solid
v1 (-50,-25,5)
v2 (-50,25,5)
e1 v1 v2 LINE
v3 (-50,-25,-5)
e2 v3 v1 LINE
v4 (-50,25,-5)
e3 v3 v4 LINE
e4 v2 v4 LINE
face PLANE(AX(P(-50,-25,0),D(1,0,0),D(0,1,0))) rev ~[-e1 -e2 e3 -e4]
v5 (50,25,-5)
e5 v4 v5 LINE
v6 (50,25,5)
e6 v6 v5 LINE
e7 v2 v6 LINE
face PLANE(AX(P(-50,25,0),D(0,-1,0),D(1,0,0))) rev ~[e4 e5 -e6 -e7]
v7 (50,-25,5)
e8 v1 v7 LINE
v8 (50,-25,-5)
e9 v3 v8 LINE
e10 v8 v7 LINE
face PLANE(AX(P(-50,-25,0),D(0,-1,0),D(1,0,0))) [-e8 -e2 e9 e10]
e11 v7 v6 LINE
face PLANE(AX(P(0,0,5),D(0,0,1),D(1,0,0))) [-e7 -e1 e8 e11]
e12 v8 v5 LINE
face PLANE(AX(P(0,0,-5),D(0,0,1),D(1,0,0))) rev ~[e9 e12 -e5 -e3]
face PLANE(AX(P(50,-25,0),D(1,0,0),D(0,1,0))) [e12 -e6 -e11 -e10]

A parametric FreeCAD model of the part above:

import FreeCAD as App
import Part
import Sketcher
from FreeCAD import Vector
Q = App.Units.Quantity


def add_polygon(sketch, points):
    """Adds a closed chain of lines whose ends are joined by coincident constraints."""
    first, n = sketch.GeometryCount, len(points)
    for a, b in zip(points, points[1:] + points[:1]):
        sketch.addGeometry(Part.LineSegment(App.Vector(*a, 0), App.Vector(*b, 0)), False)
    for i in range(n):
        sketch.addConstraint(Sketcher.Constraint("Coincident", first + i, 2, first + (i + 1) % n, 1))

doc = App.newDocument("Part")
body = doc.addObject("PartDesign::Body", "Body")

# Sketch on XY plane
sketch1 = body.newObject("Sketcher::SketchObject", "Sketch")
sketch1.AttachmentSupport = (doc.getObject("XY_Plane"), [""])
sketch1.MapMode = "FlatFace"
add_polygon(sketch1, [(-50, 25), (-50, -25), (50, -25), (50, 25)])  # lines 0-3
sketch1.addConstraint([
    Sketcher.Constraint("Vertical", 0),
    Sketcher.Constraint("Horizontal", 1),
    Sketcher.Constraint("Vertical", 2),
    Sketcher.Constraint("Horizontal", 3),
    Sketcher.Constraint("Symmetric", 0, 2, 2, 2, -1, 1),
    Sketcher.Constraint("DistanceX", 1, 1, 1, 2, Q("100 mm")),
    Sketcher.Constraint("DistanceY", 0, 2, 0, 1, Q("50 mm")),
])
pad1 = body.newObject("PartDesign::Pad", "Pad")
pad1.Profile = sketch1
pad1.Length = 10
pad1.Midplane = True

doc.recompute()
